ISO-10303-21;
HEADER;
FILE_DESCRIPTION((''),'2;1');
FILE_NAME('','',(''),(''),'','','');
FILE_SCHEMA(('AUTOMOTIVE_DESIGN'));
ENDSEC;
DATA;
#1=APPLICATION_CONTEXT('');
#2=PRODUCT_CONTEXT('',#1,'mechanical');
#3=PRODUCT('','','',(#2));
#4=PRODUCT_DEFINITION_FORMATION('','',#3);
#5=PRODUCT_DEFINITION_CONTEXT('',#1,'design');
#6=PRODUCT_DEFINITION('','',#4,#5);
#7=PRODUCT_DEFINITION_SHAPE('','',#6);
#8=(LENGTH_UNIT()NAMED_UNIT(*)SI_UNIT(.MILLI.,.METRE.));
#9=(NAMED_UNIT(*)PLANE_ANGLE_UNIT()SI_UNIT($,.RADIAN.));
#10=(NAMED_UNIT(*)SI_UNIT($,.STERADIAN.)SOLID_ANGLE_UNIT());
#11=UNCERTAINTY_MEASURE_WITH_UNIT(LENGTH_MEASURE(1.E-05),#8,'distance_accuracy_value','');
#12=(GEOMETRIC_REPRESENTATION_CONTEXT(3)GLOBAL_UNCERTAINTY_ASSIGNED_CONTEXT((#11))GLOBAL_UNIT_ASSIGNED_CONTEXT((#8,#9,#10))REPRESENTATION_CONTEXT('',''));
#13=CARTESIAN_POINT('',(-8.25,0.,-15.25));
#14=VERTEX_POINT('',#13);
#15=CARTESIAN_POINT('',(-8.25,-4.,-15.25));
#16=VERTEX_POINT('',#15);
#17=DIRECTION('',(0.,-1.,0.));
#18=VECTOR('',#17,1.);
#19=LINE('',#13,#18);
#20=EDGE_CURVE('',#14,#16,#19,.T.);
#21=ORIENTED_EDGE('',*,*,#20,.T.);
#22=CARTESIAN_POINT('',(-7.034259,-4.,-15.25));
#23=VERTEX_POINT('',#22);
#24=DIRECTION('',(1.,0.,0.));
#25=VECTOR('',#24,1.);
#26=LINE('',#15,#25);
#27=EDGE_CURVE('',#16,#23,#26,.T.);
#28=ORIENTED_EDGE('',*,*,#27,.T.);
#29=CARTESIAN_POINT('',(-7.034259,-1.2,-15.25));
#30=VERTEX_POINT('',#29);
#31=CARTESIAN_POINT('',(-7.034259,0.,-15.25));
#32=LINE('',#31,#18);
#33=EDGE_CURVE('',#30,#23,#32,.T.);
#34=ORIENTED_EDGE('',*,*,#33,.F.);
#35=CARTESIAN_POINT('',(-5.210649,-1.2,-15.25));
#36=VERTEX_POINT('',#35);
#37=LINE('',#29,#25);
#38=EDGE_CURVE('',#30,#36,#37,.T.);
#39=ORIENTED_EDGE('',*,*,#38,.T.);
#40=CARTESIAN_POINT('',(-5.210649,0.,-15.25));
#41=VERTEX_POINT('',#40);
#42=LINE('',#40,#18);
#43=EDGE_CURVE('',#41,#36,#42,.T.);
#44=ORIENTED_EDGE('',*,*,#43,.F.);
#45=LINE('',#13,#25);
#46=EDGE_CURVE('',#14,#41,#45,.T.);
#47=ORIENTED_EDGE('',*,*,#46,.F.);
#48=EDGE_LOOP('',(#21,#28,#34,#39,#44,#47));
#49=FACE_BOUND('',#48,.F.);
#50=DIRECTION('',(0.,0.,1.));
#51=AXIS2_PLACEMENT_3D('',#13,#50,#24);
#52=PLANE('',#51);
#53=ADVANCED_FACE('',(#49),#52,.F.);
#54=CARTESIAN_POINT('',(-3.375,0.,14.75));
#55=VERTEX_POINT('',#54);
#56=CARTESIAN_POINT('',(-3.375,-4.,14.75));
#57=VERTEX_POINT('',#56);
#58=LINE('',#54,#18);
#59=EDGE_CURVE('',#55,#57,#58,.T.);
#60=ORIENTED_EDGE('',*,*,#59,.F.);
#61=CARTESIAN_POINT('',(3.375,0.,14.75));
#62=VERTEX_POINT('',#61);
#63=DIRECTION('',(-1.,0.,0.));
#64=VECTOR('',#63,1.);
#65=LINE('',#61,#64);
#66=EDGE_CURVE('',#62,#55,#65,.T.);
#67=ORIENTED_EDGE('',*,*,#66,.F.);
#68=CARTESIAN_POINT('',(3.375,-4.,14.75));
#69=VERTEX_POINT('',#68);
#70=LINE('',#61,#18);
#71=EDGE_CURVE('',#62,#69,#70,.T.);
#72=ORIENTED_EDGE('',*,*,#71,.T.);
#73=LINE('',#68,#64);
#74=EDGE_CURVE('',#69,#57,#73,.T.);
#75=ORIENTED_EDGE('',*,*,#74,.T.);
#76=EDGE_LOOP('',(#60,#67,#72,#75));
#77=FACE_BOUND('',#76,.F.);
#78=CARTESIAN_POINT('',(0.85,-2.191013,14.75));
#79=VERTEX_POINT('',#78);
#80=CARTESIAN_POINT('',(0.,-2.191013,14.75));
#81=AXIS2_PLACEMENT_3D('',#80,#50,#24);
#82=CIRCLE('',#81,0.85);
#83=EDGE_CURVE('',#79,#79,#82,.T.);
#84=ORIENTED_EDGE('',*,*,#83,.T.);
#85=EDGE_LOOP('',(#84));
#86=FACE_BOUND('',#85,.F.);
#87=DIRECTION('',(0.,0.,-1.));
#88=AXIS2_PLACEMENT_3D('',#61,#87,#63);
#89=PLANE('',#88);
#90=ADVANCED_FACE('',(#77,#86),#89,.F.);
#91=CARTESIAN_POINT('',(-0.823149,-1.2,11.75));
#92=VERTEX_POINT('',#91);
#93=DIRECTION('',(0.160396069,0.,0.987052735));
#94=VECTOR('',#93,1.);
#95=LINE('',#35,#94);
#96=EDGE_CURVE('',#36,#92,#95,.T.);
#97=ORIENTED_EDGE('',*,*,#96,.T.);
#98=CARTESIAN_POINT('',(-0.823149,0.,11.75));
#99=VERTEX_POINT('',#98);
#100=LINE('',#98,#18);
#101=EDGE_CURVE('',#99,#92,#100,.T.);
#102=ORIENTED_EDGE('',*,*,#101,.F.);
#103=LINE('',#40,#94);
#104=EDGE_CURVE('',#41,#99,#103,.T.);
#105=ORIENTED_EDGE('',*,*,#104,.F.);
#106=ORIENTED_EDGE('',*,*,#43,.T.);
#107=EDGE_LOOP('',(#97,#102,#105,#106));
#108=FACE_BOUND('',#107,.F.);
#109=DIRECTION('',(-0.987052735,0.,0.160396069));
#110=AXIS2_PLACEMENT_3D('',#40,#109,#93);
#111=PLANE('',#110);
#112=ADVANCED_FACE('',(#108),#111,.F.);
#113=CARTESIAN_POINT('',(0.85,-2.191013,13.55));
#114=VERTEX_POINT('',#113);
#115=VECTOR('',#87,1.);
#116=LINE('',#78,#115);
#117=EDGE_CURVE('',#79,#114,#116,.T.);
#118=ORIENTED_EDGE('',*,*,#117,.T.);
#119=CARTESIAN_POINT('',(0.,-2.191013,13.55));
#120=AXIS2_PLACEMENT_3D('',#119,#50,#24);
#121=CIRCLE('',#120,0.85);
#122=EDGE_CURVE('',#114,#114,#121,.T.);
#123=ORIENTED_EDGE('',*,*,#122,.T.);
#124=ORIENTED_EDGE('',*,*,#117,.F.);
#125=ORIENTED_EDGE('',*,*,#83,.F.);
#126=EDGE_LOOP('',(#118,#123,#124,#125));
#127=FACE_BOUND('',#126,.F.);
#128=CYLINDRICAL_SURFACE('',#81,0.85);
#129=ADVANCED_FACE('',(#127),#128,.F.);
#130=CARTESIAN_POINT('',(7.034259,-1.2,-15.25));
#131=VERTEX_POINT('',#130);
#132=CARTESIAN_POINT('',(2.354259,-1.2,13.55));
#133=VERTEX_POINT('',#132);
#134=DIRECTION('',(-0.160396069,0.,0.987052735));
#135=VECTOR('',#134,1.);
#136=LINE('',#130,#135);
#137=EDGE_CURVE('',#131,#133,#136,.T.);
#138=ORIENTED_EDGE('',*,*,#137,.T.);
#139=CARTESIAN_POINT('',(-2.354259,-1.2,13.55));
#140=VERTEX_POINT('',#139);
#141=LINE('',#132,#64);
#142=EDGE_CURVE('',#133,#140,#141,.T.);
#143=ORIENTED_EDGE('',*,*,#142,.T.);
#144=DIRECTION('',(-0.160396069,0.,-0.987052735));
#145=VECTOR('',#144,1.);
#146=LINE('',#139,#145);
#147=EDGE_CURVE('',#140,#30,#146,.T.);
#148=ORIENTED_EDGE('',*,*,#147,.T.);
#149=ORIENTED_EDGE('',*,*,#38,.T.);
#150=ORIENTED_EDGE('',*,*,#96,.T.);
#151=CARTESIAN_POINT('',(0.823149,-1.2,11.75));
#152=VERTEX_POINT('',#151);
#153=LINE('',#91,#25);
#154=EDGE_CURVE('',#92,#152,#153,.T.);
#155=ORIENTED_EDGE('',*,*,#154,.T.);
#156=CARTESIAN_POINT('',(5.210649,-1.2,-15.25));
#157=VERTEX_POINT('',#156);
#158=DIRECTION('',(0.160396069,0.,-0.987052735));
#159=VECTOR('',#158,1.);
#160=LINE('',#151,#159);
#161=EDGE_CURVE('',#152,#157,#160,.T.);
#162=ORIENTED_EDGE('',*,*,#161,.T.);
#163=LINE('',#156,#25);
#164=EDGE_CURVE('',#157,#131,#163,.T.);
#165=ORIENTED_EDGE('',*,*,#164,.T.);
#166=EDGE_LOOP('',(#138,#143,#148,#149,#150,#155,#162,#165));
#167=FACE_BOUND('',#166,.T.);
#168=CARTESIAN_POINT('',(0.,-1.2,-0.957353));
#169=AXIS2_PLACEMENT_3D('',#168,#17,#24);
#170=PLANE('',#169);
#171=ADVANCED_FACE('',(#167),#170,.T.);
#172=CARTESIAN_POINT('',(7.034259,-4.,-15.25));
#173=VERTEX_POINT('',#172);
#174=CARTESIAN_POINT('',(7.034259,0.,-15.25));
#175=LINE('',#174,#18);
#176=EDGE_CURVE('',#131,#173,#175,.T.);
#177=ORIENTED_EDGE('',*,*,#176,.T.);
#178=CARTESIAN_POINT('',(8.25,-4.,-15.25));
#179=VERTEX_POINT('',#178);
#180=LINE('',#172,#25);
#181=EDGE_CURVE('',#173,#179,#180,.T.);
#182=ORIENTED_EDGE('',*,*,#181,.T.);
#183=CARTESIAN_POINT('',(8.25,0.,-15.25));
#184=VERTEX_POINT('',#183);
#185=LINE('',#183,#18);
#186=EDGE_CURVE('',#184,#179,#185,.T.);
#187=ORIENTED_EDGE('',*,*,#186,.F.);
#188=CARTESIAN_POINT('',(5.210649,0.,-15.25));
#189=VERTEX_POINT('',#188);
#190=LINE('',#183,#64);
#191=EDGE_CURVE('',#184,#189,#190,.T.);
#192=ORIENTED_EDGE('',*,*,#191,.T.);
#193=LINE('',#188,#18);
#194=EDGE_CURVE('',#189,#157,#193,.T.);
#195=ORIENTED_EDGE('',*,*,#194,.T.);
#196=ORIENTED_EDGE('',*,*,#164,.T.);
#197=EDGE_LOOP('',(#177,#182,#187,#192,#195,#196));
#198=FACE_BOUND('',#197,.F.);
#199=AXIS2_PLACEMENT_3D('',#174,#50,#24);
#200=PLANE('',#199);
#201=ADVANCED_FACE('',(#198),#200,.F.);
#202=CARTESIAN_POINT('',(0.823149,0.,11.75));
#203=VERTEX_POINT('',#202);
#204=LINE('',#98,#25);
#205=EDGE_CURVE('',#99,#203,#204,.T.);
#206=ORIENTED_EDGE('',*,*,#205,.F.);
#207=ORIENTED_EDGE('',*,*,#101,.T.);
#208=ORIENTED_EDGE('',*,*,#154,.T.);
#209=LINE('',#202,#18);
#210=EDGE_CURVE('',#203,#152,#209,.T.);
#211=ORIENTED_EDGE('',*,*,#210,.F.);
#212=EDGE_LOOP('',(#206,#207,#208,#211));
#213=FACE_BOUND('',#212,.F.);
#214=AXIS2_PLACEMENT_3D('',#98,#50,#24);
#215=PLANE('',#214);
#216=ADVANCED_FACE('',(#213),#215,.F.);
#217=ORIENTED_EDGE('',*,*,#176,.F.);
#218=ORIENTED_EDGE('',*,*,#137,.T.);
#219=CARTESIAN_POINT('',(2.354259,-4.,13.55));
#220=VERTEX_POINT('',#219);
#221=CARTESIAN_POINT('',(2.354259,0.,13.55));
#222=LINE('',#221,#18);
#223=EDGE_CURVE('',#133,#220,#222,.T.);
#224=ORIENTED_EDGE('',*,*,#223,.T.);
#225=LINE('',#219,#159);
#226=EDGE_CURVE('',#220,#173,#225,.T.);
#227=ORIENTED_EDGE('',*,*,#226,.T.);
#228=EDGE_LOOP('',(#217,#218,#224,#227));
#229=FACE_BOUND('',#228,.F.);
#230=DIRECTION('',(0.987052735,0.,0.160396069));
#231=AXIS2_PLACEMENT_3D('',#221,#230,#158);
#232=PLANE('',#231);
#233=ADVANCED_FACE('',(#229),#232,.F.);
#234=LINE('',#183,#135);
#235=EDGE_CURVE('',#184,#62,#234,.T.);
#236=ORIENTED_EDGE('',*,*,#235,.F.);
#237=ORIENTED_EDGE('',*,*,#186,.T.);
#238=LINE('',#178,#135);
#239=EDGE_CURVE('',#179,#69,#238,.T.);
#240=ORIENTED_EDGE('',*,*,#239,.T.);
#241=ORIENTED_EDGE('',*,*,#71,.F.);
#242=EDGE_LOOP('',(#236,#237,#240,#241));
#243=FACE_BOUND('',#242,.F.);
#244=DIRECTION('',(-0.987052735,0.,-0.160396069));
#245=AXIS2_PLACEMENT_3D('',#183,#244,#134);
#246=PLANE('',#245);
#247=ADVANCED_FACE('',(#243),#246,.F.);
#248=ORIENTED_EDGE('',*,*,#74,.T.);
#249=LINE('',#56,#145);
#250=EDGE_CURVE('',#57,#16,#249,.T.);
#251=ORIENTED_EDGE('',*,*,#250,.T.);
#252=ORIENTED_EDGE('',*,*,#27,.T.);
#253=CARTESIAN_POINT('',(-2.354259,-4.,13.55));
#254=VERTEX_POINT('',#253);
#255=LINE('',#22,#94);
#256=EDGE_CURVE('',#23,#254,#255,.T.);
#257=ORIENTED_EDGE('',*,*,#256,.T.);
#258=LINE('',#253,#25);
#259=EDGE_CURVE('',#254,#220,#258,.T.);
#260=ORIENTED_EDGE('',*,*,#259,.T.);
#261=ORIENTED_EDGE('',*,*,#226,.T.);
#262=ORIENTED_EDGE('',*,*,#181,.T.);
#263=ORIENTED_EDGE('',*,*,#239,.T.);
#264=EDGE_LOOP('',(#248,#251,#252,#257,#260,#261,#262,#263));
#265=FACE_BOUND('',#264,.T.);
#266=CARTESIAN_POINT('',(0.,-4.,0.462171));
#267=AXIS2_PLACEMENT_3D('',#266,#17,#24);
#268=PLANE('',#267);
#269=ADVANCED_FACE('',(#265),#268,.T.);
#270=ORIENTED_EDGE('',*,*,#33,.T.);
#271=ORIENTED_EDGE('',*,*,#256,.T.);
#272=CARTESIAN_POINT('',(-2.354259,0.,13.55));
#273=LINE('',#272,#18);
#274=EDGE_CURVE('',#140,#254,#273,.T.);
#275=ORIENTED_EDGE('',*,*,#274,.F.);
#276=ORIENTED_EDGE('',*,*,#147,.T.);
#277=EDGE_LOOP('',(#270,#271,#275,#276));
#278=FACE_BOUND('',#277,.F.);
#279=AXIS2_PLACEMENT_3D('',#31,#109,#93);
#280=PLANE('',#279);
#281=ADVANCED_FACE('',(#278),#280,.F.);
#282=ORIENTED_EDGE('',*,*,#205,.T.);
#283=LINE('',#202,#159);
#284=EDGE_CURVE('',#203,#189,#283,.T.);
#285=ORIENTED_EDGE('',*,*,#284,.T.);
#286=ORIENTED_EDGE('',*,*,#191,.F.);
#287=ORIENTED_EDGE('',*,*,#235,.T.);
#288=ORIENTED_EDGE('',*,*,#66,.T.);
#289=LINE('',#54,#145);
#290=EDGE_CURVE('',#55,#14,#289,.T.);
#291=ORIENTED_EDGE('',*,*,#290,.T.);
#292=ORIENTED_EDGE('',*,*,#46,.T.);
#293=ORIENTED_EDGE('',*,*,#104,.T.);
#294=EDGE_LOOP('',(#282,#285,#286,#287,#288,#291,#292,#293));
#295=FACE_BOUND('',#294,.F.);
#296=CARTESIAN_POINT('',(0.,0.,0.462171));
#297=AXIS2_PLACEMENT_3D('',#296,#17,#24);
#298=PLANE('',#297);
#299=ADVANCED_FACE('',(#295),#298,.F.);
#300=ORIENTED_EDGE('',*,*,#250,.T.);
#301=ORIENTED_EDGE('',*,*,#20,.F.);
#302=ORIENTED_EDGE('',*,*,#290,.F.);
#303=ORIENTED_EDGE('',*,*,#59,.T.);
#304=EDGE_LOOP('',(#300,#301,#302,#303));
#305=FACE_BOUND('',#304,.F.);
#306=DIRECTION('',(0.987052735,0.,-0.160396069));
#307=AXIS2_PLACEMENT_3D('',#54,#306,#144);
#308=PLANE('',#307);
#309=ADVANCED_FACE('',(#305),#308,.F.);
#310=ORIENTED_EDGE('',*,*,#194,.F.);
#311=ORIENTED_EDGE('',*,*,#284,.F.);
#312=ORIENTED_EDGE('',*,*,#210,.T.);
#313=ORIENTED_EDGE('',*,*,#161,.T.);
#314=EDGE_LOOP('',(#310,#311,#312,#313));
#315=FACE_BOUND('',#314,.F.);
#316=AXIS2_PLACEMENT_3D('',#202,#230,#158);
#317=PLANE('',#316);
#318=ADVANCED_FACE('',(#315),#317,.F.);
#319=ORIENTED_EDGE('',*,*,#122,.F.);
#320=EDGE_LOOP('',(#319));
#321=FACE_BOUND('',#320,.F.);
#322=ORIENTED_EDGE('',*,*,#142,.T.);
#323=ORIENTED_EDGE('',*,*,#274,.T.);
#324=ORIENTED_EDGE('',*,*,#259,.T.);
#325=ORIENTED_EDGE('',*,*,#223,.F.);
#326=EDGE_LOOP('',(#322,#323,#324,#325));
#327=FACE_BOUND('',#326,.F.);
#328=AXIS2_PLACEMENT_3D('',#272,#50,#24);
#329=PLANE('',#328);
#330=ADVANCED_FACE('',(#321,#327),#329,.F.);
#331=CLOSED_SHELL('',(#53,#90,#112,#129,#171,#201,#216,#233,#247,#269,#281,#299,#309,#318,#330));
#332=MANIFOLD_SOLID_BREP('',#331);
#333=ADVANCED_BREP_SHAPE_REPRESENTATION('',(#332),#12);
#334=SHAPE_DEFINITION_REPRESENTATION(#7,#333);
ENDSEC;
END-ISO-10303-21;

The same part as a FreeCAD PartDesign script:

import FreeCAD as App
import Part
import Sketcher
from FreeCAD import Vector

doc = App.newDocument("Part")
body = doc.addObject("PartDesign::Body", "Body")

sketch1 = doc.addObject("Sketcher::SketchObject", "Sketch")
body.addObject(sketch1)
sketch1.AttachmentSupport = (doc.XZ_Plane, [""])
sketch1.MapMode = "FlatFace"
sketch1.addGeometry([
    Part.LineSegment(Vector(-2.4, 13.6, 0), Vector(-7, -15.2, 0)),
    Part.LineSegment(Vector(-7, -15.2, 0), Vector(-5.2, -15.2, 0)),
    Part.LineSegment(Vector(-5.2, -15.2, 0), Vector(-0.8, 11.8, 0)),
    Part.LineSegment(Vector(-0.8, 11.8, 0), Vector(0.8, 11.8, 0)),
    Part.LineSegment(Vector(0.8, 11.8, 0), Vector(5.2, -15.2, 0)),
    Part.LineSegment(Vector(5.2, -15.2, 0), Vector(7, -15.2, 0)),
    Part.LineSegment(Vector(7, -15.2, 0), Vector(2.4, 13.6, 0)),
    Part.LineSegment(Vector(2.4, 13.6, 0), Vector(-2.4, 13.6, 0)),
], False)
sketch1.addConstraint([
    Sketcher.Constraint("Coincident", 0, 2, 1, 1),
    Sketcher.Constraint("Coincident", 1, 2, 2, 1),
    Sketcher.Constraint("Coincident", 2, 2, 3, 1),
    Sketcher.Constraint("Coincident", 3, 2, 4, 1),
    Sketcher.Constraint("Coincident", 4, 2, 5, 1),
    Sketcher.Constraint("Coincident", 5, 2, 6, 1),
    Sketcher.Constraint("Coincident", 6, 2, 7, 1),
    Sketcher.Constraint("Coincident", 7, 2, 0, 1),
    Sketcher.Constraint("Horizontal", 1),
    Sketcher.Constraint("Horizontal", 3),
    Sketcher.Constraint("Horizontal", 5),
    Sketcher.Constraint("Horizontal", 7),
    Sketcher.Constraint("Symmetric", 1, 2, 4, 2, -2),
    Sketcher.Constraint("Parallel", 0, 2),
    Sketcher.Constraint("Parallel", 4, 6),
    Sketcher.Constraint("Equal", 1, 5),
    Sketcher.Constraint("Equal", 2, 4),
    Sketcher.Constraint("DistanceY", 1, 2, 2, 2, 27.0),
    Sketcher.Constraint("DistanceY", 3, 2, 6, 2, 1.8),
    Sketcher.Constraint("DistanceY", 0, 2, -1, 1, 15.25),
    Sketcher.Constraint("DistanceX", 6, 2, 5, 2, 4.68),
    Sketcher.Constraint("DistanceX", 1, 1, 1, 2, 1.82361),
    Sketcher.Constraint("DistanceX", 3, 1, 3, 2, 1.646298),
])
pad1 = doc.addObject("PartDesign::Pad", "Pad")
body.addObject(pad1)
pad1.Profile = sketch1
pad1.Length = 1.2

sketch2 = doc.addObject("Sketcher::SketchObject", "Sketch001")
body.addObject(sketch2)
sketch2.AttachmentSupport = (doc.XZ_Plane, [""])
sketch2.MapMode = "FlatFace"
sketch2.addGeometry([
    Part.LineSegment(Vector(-3.4, 14.8, 0), Vector(-8.2, -15.2, 0)),
    Part.LineSegment(Vector(-8.2, -15.2, 0), Vector(-7, -15.2, 0)),
    Part.LineSegment(Vector(-7, -15.2, 0), Vector(-2.4, 13.6, 0)),
    Part.LineSegment(Vector(-2.4, 13.6, 0), Vector(2.4, 13.6, 0)),
    Part.LineSegment(Vector(2.4, 13.6, 0), Vector(7, -15.2, 0)),
    Part.LineSegment(Vector(7, -15.2, 0), Vector(8.2, -15.2, 0)),
    Part.LineSegment(Vector(8.2, -15.2, 0), Vector(3.4, 14.8, 0)),
    Part.LineSegment(Vector(3.4, 14.8, 0), Vector(-3.4, 14.8, 0)),
], False)
sketch2.addConstraint([
    Sketcher.Constraint("Coincident", 0, 2, 1, 1),
    Sketcher.Constraint("Coincident", 1, 2, 2, 1),
    Sketcher.Constraint("Coincident", 2, 2, 3, 1),
    Sketcher.Constraint("Coincident", 3, 2, 4, 1),
    Sketcher.Constraint("Coincident", 4, 2, 5, 1),
    Sketcher.Constraint("Coincident", 5, 2, 6, 1),
    Sketcher.Constraint("Coincident", 6, 2, 7, 1),
    Sketcher.Constraint("Coincident", 7, 2, 0, 1),
    Sketcher.Constraint("Horizontal", 1),
    Sketcher.Constraint("Horizontal", 3),
    Sketcher.Constraint("Horizontal", 5),
    Sketcher.Constraint("Horizontal", 7),
    Sketcher.Constraint("Symmetric", 1, 2, 4, 2, -2),
    Sketcher.Constraint("Parallel", 0, 2),
    Sketcher.Constraint("Parallel", 4, 6),
    Sketcher.Constraint("Equal", 1, 5),
    Sketcher.Constraint("Equal", 2, 4),
    Sketcher.Constraint("DistanceY", 4, 2, 6, 2, 30.0),
    Sketcher.Constraint("DistanceX", 7, 2, 7, 1, 6.75),
    Sketcher.Constraint("DistanceY", 1, 2, 2, 2, 28.8),
    Sketcher.Constraint("DistanceX", 0, 2, 5, 2, 16.5),
    Sketcher.Constraint("DistanceY", 0, 2, -1, 1, 15.25),
    Sketcher.Constraint("DistanceX", 1, 1, 1, 2, 1.215741),
])
pad2 = doc.addObject("PartDesign::Pad", "Pad001")
body.addObject(pad2)
pad2.Profile = sketch2
pad2.Length = 4

sketch3 = doc.addObject("Sketcher::SketchObject", "Sketch002")
body.addObject(sketch3)
sketch3.AttachmentSupport = (doc.XY_Plane, [""])
sketch3.MapMode = "FlatFace"
sketch3.AttachmentOffset = App.Placement(Vector(0, 0, 14.75), App.Rotation())
sketch3.addGeometry(Part.Circle(Vector(0, -2.2, 0), Vector(0, 0, 1), 0.8), False)
sketch3.addConstraint([
    Sketcher.Constraint("PointOnObject", 0, 3, -2),
    Sketcher.Constraint("Diameter", 0, 1.7),
    Sketcher.Constraint("DistanceY", 0, 3, -1, 1, 2.191013),
])
pocket1 = doc.addObject("PartDesign::Pocket", "Pocket")
body.addObject(pocket1)
pocket1.Profile = sketch3
pocket1.Length = 1.5

doc.recompute()
